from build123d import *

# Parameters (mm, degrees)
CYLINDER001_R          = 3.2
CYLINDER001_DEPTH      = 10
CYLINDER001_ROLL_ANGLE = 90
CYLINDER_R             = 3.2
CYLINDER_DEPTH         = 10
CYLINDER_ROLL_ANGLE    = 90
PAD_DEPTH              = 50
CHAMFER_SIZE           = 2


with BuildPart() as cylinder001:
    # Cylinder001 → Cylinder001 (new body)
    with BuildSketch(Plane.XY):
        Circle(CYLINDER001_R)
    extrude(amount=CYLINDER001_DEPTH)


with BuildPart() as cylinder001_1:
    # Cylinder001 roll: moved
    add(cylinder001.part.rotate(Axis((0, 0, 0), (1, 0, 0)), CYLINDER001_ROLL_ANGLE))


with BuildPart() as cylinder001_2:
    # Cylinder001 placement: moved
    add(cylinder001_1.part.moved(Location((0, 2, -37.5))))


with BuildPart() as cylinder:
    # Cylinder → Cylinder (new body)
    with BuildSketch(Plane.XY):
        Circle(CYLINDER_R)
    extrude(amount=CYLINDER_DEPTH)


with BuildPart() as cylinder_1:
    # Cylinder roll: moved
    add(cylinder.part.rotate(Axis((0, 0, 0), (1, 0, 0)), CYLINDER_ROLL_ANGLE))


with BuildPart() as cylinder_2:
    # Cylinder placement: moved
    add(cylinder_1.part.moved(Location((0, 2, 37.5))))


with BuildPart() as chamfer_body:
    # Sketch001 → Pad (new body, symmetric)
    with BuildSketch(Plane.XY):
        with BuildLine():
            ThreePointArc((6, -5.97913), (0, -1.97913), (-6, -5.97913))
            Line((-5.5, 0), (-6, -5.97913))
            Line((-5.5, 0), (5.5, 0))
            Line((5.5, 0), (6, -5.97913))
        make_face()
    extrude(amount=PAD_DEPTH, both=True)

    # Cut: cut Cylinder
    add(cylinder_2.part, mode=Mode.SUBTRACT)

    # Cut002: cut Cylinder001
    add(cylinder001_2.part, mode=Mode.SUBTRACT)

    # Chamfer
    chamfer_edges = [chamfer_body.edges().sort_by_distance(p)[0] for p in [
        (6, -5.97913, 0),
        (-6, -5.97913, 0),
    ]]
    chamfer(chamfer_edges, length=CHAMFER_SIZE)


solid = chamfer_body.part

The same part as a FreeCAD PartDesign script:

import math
import FreeCAD as App
import Part
import Sketcher


def edges_at(feature, points):
    """Names of the edges that pass closest to the given points."""
    edges = feature.Shape.Edges
    near = lambda p: min(range(len(edges)), key=lambda i: edges[i].distToShape(Part.Vertex(*p))[0])
    return sorted({f"Edge{near(p) + 1}" for p in points})

doc = App.newDocument("Part")
body = doc.addObject("PartDesign::Body", "Body")

sketch1 = doc.addObject("Sketcher::SketchObject", "Sketch")
body.addObject(sketch1)
sketch1.AttachmentSupport = (doc.XY_Plane, [""])
sketch1.MapMode = "FlatFace"
sketch1.addGeometry(Part.Circle(App.Vector(0, 0, 0), App.Vector(0, 0, 1), 3.2), False)
sketch1.addConstraint(Sketcher.Constraint("Coincident", 0, 3, -1, 1))
sketch1.addConstraint(Sketcher.Constraint("Diameter", 0, 6.4))
pad1 = doc.addObject("PartDesign::Pad", "Pad")
body.addObject(pad1)
pad1.Profile = sketch1
pad1.Length = 10
body2 = doc.addObject("PartDesign::Body", "Body001")
doc.recompute()

body.Placement = App.Placement(App.Vector(0, 0, 0), App.Rotation(App.Vector(1, 0, 0), 90))
boolean = doc.addObject("PartDesign::Boolean", "Boolean")
body2.addObject(boolean)
boolean.Type = "Fuse"
boolean.addObjects([body])
body3 = doc.addObject("PartDesign::Body", "Body002")
doc.recompute()

body2.Placement = App.Placement(App.Vector(0, 2, -37.5), App.Rotation(App.Vector(0, 0, 1), 0))
boolean2 = doc.addObject("PartDesign::Boolean", "Boolean001")
body3.addObject(boolean2)
boolean2.Type = "Fuse"
boolean2.addObjects([body2])
body4 = doc.addObject("PartDesign::Body", "Body003")

sketch2 = doc.addObject("Sketcher::SketchObject", "Sketch001")
body4.addObject(sketch2)
sketch2.AttachmentSupport = (doc.getObject("XY_Plane003"), [""])
sketch2.MapMode = "FlatFace"
sketch2.addGeometry(Part.Circle(App.Vector(0, 0, 0), App.Vector(0, 0, 1), 3.2), False)
sketch2.addConstraint(Sketcher.Constraint("Coincident", 0, 3, -1, 1))
sketch2.addConstraint(Sketcher.Constraint("Diameter", 0, 6.4))
pad2 = doc.addObject("PartDesign::Pad", "Pad001")
body4.addObject(pad2)
pad2.Profile = sketch2
pad2.Length = 10
body5 = doc.addObject("PartDesign::Body", "Body004")
doc.recompute()

body4.Placement = App.Placement(App.Vector(0, 0, 0), App.Rotation(App.Vector(1, 0, 0), 90))
boolean3 = doc.addObject("PartDesign::Boolean", "Boolean002")
body5.addObject(boolean3)
boolean3.Type = "Fuse"
boolean3.addObjects([body4])
body6 = doc.addObject("PartDesign::Body", "Body005")
doc.recompute()

body5.Placement = App.Placement(App.Vector(0, 2, 37.5), App.Rotation(App.Vector(0, 0, 1), 0))
boolean4 = doc.addObject("PartDesign::Boolean", "Boolean003")
body6.addObject(boolean4)
boolean4.Type = "Fuse"
boolean4.addObjects([body5])
body7 = doc.addObject("PartDesign::Body", "Body006")

sketch3 = doc.addObject("Sketcher::SketchObject", "Sketch002")
body7.addObject(sketch3)
sketch3.AttachmentSupport = (doc.getObject("XY_Plane006"), [""])
sketch3.MapMode = "FlatFace"
sketch3.addGeometry(Part.ArcOfCircle(Part.Circle(App.Vector(0, -8, 0), App.Vector(0, 0, 1), 6), math.radians(23), math.radians(157)), False)
sketch3.addGeometry(Part.LineSegment(App.Vector(6, -6, 0), App.Vector(6, 0, 0)), False)
sketch3.addGeometry(Part.LineSegment(App.Vector(6, 0, 0), App.Vector(-6, 0, 0)), False)
sketch3.addGeometry(Part.LineSegment(App.Vector(-6, 0, 0), App.Vector(-6, -6, 0)), False)
sketch3.addConstraint(Sketcher.Constraint("Coincident", 0, 1, 1, 1))
sketch3.addConstraint(Sketcher.Constraint("Coincident", 1, 2, 2, 1))
sketch3.addConstraint(Sketcher.Constraint("Coincident", 2, 2, 3, 1))
sketch3.addConstraint(Sketcher.Constraint("Coincident", 3, 2, 0, 2))
sketch3.addConstraint(Sketcher.Constraint("Horizontal", 2))
sketch3.addConstraint(Sketcher.Constraint("Symmetric", 1, 2, 2, 2, -1, 1))
sketch3.addConstraint(Sketcher.Constraint("Symmetric", 0, 1, 3, 2, -2))
sketch3.addConstraint(Sketcher.Constraint("Radius", 0, 6.5))
sketch3.addConstraint(Sketcher.Constraint("DistanceX", 2, 2, 2, 1, 11.0))
sketch3.addConstraint(Sketcher.Constraint("Distance", 1, 6.0))
sketch3.addConstraint(Sketcher.Constraint("DistanceX", -1, 1, 0, 1, 6.0))
pad3 = doc.addObject("PartDesign::Pad", "Pad002")
body7.addObject(pad3)
pad3.Profile = sketch3
pad3.Length = 100
pad3.Midplane = True
doc.recompute()

boolean5 = doc.addObject("PartDesign::Boolean", "Boolean004")
body7.addObject(boolean5)
boolean5.Type = "Cut"
boolean5.addObjects([body6])
doc.recompute()

boolean6 = doc.addObject("PartDesign::Boolean", "Boolean005")
body7.addObject(boolean6)
boolean6.Type = "Cut"
boolean6.addObjects([body3])
doc.recompute()

chamfer = doc.addObject("PartDesign::Chamfer", "Chamfer")
body7.addObject(chamfer)
chamfer.Base = (boolean6, edges_at(boolean6, [(6, -5.979, 0), (-6, -5.979, 0)]))
chamfer.Size = 2

doc.recompute()
